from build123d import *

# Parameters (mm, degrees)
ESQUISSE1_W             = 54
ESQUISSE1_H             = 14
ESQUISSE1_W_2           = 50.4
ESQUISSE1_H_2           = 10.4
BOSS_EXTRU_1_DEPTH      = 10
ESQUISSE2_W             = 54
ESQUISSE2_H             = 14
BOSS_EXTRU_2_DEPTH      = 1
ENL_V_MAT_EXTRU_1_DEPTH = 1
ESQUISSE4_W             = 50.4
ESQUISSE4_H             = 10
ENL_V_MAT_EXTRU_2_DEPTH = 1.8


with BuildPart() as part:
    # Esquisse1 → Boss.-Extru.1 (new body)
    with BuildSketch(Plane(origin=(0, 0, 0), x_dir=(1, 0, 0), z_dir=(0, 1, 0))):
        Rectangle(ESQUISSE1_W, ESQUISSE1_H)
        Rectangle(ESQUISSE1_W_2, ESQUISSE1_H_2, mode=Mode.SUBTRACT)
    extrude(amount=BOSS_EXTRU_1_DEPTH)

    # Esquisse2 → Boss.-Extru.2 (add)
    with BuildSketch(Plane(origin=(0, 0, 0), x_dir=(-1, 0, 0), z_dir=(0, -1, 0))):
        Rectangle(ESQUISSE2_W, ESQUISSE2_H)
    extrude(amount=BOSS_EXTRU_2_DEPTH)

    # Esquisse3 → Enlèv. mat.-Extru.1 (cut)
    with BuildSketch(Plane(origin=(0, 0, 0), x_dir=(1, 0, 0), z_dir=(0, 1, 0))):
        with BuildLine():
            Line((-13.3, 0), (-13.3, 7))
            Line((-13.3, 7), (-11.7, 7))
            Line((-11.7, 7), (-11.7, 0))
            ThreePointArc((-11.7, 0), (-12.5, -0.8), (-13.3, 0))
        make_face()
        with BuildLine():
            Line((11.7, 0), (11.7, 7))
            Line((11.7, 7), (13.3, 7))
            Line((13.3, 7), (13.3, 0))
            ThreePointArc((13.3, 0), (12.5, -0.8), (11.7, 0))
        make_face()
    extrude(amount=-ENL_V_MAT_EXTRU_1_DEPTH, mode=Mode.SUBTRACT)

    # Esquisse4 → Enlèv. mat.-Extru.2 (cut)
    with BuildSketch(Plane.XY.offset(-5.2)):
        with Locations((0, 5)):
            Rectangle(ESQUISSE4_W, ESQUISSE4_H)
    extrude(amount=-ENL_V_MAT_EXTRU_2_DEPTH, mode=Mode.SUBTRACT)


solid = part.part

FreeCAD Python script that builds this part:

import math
import FreeCAD as App
import Part
import Sketcher

V = App.Vector
Q = App.Units.Quantity

doc = App.newDocument("Part")
body = doc.addObject("PartDesign::Body", "Body")

# Sketch on XZ plane
sketch1 = body.newObject("Sketcher::SketchObject", "Sketch")
sketch1.AttachmentSupport = (doc.getObject("XZ_Plane"), [""])
sketch1.MapMode = "FlatFace"
sketch1.addGeometry([
    Part.LineSegment(V(-27, -7, 0), V(-27, 7, 0)),  # 0
    Part.LineSegment(V(-27, 7, 0), V(27, 7, 0)),  # 1
    Part.LineSegment(V(27, 7, 0), V(27, -7, 0)),  # 2
    Part.LineSegment(V(27, -7, 0), V(-27, -7, 0)),  # 3
    Part.LineSegment(V(25, 5, 0), V(-25, 5, 0)),  # 4
    Part.LineSegment(V(-25, 5, 0), V(-25, -5, 0)),  # 5
    Part.LineSegment(V(-25, -5, 0), V(25, -5, 0)),  # 6
    Part.LineSegment(V(25, -5, 0), V(25, 5, 0)),  # 7
], False)
sketch1.addConstraint([
    Sketcher.Constraint("Coincident", 0, 2, 1, 1),
    Sketcher.Constraint("Coincident", 1, 2, 2, 1),
    Sketcher.Constraint("Coincident", 2, 2, 3, 1),
    Sketcher.Constraint("Coincident", 3, 2, 0, 1),
    Sketcher.Constraint("Coincident", 4, 2, 5, 1),
    Sketcher.Constraint("Coincident", 5, 2, 6, 1),
    Sketcher.Constraint("Coincident", 6, 2, 7, 1),
    Sketcher.Constraint("Coincident", 7, 2, 4, 1),
    Sketcher.Constraint("Vertical", 0),
    Sketcher.Constraint("Horizontal", 1),
    Sketcher.Constraint("Vertical", 2),
    Sketcher.Constraint("Horizontal", 3),
    Sketcher.Constraint("Horizontal", 4),
    Sketcher.Constraint("Vertical", 5),
    Sketcher.Constraint("Horizontal", 6),
    Sketcher.Constraint("Vertical", 7),
    Sketcher.Constraint("Symmetric", 0, 2, 2, 2, -1, 1),
    Sketcher.Constraint("Symmetric", 4, 2, 6, 2, -1, 1),
    Sketcher.Constraint("DistanceX", 1, 1, 1, 2, Q("54 mm")),
    Sketcher.Constraint("DistanceY", 0, 1, 0, 2, Q("14 mm")),
    Sketcher.Constraint("DistanceX", 4, 2, 4, 1, Q("50.4 mm")),
    Sketcher.Constraint("DistanceY", 5, 2, 5, 1, Q("10.4 mm")),
])
pad1 = body.newObject("PartDesign::Pad", "Pad")
pad1.Profile = sketch1
pad1.Length = 10
pad1.Reversed = True

# Sketch on XZ plane
sketch2 = body.newObject("Sketcher::SketchObject", "Sketch001")
sketch2.AttachmentSupport = (doc.getObject("XZ_Plane"), [""])
sketch2.MapMode = "FlatFace"
sketch2.addGeometry([
    Part.LineSegment(V(27, -7, 0), V(27, 7, 0)),
    Part.LineSegment(V(27, 7, 0), V(-27, 7, 0)),
    Part.LineSegment(V(-27, 7, 0), V(-27, -7, 0)),
    Part.LineSegment(V(-27, -7, 0), V(27, -7, 0)),
], False)
sketch2.addConstraint([
    Sketcher.Constraint("Coincident", 0, 2, 1, 1),
    Sketcher.Constraint("Coincident", 1, 2, 2, 1),
    Sketcher.Constraint("Coincident", 2, 2, 3, 1),
    Sketcher.Constraint("Coincident", 3, 2, 0, 1),
    Sketcher.Constraint("Vertical", 0),
    Sketcher.Constraint("Horizontal", 1),
    Sketcher.Constraint("Vertical", 2),
    Sketcher.Constraint("Horizontal", 3),
    Sketcher.Constraint("Symmetric", 0, 2, 2, 2, -1, 1),
    Sketcher.Constraint("DistanceX", 1, 2, 1, 1, Q("54 mm")),
    Sketcher.Constraint("DistanceY", 0, 1, 0, 2, Q("14 mm")),
])
pad2 = body.newObject("PartDesign::Pad", "Pad001")
pad2.Profile = sketch2
pad2.Length = 1

# Sketch on XZ plane
sketch3 = body.newObject("Sketcher::SketchObject", "Sketch002")
sketch3.AttachmentSupport = (doc.getObject("XZ_Plane"), [""])
sketch3.MapMode = "FlatFace"
sketch3.addGeometry([
    Part.LineSegment(V(-13.3, -7, 0), V(-13.3, 0, 0)),  # 0
    Part.ArcOfCircle(Part.Circle(V(-12.5, 0, 0), V(0, 0, 1), 0.8), math.radians(0), math.radians(180)),  # 1
    Part.LineSegment(V(-11.7, 0, 0), V(-11.7, -7, 0)),  # 2
    Part.LineSegment(V(-11.7, -7, 0), V(-13.3, -7, 0)),  # 3
    Part.LineSegment(V(11.7, -7, 0), V(11.7, 0, 0)),  # 4
    Part.ArcOfCircle(Part.Circle(V(12.5, 0, 0), V(0, 0, 1), 0.8), math.radians(0), math.radians(180)),  # 5
    Part.LineSegment(V(13.3, 0, 0), V(13.3, -7, 0)),  # 6
    Part.LineSegment(V(13.3, -7, 0), V(11.7, -7, 0)),  # 7
], False)
sketch3.addConstraint([
    Sketcher.Constraint("Tangent", 0, 2, 1, 2),
    Sketcher.Constraint("Tangent", 1, 1, 2, 1),
    Sketcher.Constraint("Coincident", 2, 2, 3, 1),
    Sketcher.Constraint("Coincident", 3, 2, 0, 1),
    Sketcher.Constraint("Tangent", 4, 2, 5, 2),
    Sketcher.Constraint("Tangent", 5, 1, 6, 1),
    Sketcher.Constraint("Coincident", 6, 2, 7, 1),
    Sketcher.Constraint("Coincident", 7, 2, 4, 1),
    Sketcher.Constraint("Vertical", 0),
    Sketcher.Constraint("Vertical", 2),
    Sketcher.Constraint("Horizontal", 3),
    Sketcher.Constraint("Vertical", 4),
    Sketcher.Constraint("Vertical", 6),
    Sketcher.Constraint("Horizontal", 7),
    Sketcher.Constraint("Equal", 1, 5),
    Sketcher.Constraint("Symmetric", 1, 3, 5, 3, -1, 1),
    Sketcher.Constraint("PointOnObject", 1, 3, -1),
    Sketcher.Constraint("Horizontal", 3, 2, 6, 2),
    Sketcher.Constraint("Radius", 1, Q("0.8 mm")),
    Sketcher.Constraint("DistanceY", 0, 1, 0, 2, Q("7 mm")),
    Sketcher.Constraint("DistanceX", 1, 3, 5, 3, Q("25 mm")),
])
pocket1 = body.newObject("PartDesign::Pocket", "Pocket")
pocket1.Profile = sketch3
pocket1.Length = 1
pocket1.Reversed = True

# Sketch on XY plane
sketch4 = body.newObject("Sketcher::SketchObject", "Sketch003")
sketch4.AttachmentSupport = (doc.getObject("XY_Plane"), [""])
sketch4.MapMode = "FlatFace"
sketch4.AttachmentOffset = App.Placement(V(0, 0, -5.2), App.Rotation())
sketch4.addGeometry([
    Part.LineSegment(V(-25, 10, 0), V(-25, 0, 0)),
    Part.LineSegment(V(-25, 0, 0), V(25, 0, 0)),
    Part.LineSegment(V(25, 0, 0), V(25, 10, 0)),
    Part.LineSegment(V(25, 10, 0), V(-25, 10, 0)),
], False)
sketch4.addConstraint([
    Sketcher.Constraint("Coincident", 0, 2, 1, 1),
    Sketcher.Constraint("Coincident", 1, 2, 2, 1),
    Sketcher.Constraint("Coincident", 2, 2, 3, 1),
    Sketcher.Constraint("Coincident", 3, 2, 0, 1),
    Sketcher.Constraint("Vertical", 0),
    Sketcher.Constraint("Horizontal", 1),
    Sketcher.Constraint("Vertical", 2),
    Sketcher.Constraint("Horizontal", 3),
    Sketcher.Constraint("Symmetric", 0, 2, 1, 2, -1, 1),
    Sketcher.Constraint("DistanceY", 0, 2, 0, 1, Q("10 mm")),
    Sketcher.Constraint("DistanceX", 1, 1, 1, 2, Q("50.4 mm")),
])
pocket2 = body.newObject("PartDesign::Pocket", "Pocket001")
pocket2.Profile = sketch4
pocket2.Length = 1.8

doc.recompute()
